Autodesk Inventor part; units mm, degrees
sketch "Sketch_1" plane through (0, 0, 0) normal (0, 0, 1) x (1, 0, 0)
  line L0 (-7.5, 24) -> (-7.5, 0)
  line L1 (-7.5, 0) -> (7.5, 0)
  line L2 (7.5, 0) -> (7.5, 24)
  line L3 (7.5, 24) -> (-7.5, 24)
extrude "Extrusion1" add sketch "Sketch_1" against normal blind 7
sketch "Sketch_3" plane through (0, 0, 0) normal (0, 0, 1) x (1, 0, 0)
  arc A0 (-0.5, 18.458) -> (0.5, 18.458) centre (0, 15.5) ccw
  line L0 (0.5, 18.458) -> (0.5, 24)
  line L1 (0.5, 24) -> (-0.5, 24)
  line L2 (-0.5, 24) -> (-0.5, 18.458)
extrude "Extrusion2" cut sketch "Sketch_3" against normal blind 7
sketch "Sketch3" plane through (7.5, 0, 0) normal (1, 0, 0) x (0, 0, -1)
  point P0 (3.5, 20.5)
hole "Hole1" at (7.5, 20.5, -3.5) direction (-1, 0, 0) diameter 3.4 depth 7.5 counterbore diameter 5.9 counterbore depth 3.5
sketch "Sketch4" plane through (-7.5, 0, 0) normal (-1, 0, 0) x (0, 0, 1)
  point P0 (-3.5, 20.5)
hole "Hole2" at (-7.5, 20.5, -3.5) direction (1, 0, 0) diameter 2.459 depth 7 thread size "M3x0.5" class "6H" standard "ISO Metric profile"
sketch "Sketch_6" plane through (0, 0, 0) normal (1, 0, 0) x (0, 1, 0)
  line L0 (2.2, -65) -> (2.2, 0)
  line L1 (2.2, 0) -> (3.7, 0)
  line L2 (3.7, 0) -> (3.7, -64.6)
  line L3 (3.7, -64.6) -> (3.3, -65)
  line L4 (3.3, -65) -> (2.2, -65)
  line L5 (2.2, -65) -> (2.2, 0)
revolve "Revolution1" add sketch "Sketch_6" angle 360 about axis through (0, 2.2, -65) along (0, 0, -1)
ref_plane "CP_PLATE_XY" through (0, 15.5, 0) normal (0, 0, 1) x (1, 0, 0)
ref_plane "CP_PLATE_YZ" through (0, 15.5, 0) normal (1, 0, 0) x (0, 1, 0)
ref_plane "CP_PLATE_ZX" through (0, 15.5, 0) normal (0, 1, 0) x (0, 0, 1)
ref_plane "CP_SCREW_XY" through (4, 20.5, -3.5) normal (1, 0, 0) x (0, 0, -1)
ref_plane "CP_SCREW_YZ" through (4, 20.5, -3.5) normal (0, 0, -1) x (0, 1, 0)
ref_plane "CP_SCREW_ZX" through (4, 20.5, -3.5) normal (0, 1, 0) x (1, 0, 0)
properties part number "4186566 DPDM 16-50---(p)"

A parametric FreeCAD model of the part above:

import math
import FreeCAD as App
import Part
import Sketcher
Q = App.Units.Quantity

doc = App.newDocument("Part")
body = doc.addObject("PartDesign::Body", "Body")

sketch1 = body.newObject("Sketcher::SketchObject", "Sketch")
sketch1.AttachmentSupport = (doc.getObject("XY_Plane"), [""])
sketch1.MapMode = "FlatFace"
sketch1.addGeometry([
    Part.LineSegment(App.Vector(8, 24, 0), App.Vector(-8, 24, 0)),
    Part.LineSegment(App.Vector(-8, 24, 0), App.Vector(-8, 0, 0)),
    Part.LineSegment(App.Vector(-8, 0, 0), App.Vector(8, 0, 0)),
    Part.LineSegment(App.Vector(8, 0, 0), App.Vector(8, 24, 0)),
], False)
sketch1.addConstraint([
    Sketcher.Constraint("Coincident", 0, 2, 1, 1),
    Sketcher.Constraint("Coincident", 1, 2, 2, 1),
    Sketcher.Constraint("Coincident", 2, 2, 3, 1),
    Sketcher.Constraint("Coincident", 3, 2, 0, 1),
    Sketcher.Constraint("Horizontal", 0),
    Sketcher.Constraint("Vertical", 1),
    Sketcher.Constraint("Horizontal", 2),
    Sketcher.Constraint("Vertical", 3),
    Sketcher.Constraint("Symmetric", 1, 2, 2, 2, -1, 1),
    Sketcher.Constraint("DistanceX", 0, 2, 0, 1, Q("15 mm")),
    Sketcher.Constraint("DistanceY", 1, 2, 1, 1, Q("24 mm")),
])
pad1 = body.newObject("PartDesign::Pad", "Pad")
pad1.Profile = sketch1
pad1.Length = 7
pad1.Reversed = True

sketch2 = body.newObject("Sketcher::SketchObject", "Sketch001")
sketch2.AttachmentSupport = (doc.getObject("XY_Plane"), [""])
sketch2.MapMode = "FlatFace"
sketch2.addGeometry([
    Part.LineSegment(App.Vector(-0.5, 24, 0), App.Vector(-0.5, 18.5, 0)),
    Part.ArcOfCircle(Part.Circle(App.Vector(0, 15.5, 0), App.Vector(0, 0, 1), 3), math.radians(100), math.radians(440)),
    Part.LineSegment(App.Vector(0.5, 18.5, 0), App.Vector(0.5, 24, 0)),
    Part.LineSegment(App.Vector(0.5, 24, 0), App.Vector(-0.5, 24, 0)),
], False)
sketch2.addConstraint([
    Sketcher.Constraint("Coincident", 0, 2, 1, 1),
    Sketcher.Constraint("Coincident", 1, 2, 2, 1),
    Sketcher.Constraint("Coincident", 2, 2, 3, 1),
    Sketcher.Constraint("Coincident", 3, 2, 0, 1),
    Sketcher.Constraint("Vertical", 0),
    Sketcher.Constraint("Vertical", 2),
    Sketcher.Constraint("Horizontal", 3),
    Sketcher.Constraint("Symmetric", 0, 2, 1, 2, -2),
    Sketcher.Constraint("Radius", 1, Q("3 mm")),
    Sketcher.Constraint("DistanceX", 3, 2, 3, 1, Q("1 mm")),
    Sketcher.Constraint("DistanceY", -1, 1, 2, 2, Q("24 mm")),
    Sketcher.Constraint("DistanceY", -1, 1, 1, 3, Q("15.5 mm")),
])
pocket1 = body.newObject("PartDesign::Pocket", "Pocket")
pocket1.Profile = sketch2
pocket1.Length = 7

sketch3 = body.newObject("Sketcher::SketchObject", "Sketch002")
sketch3.AttachmentSupport = (doc.getObject("YZ_Plane"), [""])
sketch3.MapMode = "FlatFace"
sketch3.AttachmentOffset = App.Placement(App.Vector(0, 0, 7.5), App.Rotation())
sketch3.addGeometry(Part.Circle(App.Vector(20.5, -3.5, 0), App.Vector(0, 0, 1), 1.7), False)
sketch3.addConstraint([
    Sketcher.Constraint("Diameter", 0, Q("3.4 mm")),
    Sketcher.Constraint("DistanceX", -1, 1, 0, 3, Q("20.5 mm")),
    Sketcher.Constraint("DistanceY", 0, 3, -1, 1, Q("3.5 mm")),
])
doc.recompute()
hole = body.newObject("PartDesign::Hole", "Hole")
hole.Profile = sketch3
hole.ThreadType = "None"
hole.Diameter = 3.4
hole.DepthType = "Dimension"
hole.Depth = 7.5
hole.DrillPoint = "Flat"
hole.HoleCutType = "Counterbore"
hole.HoleCutDiameter = 5.9
hole.HoleCutDepth = 3.5

sketch4 = body.newObject("Sketcher::SketchObject", "Sketch003")
sketch4.AttachmentSupport = (doc.getObject("YZ_Plane"), [""])
sketch4.MapMode = "FlatFace"
sketch4.AttachmentOffset = App.Placement(App.Vector(0, 0, -7.5), App.Rotation())
sketch4.addGeometry(Part.Circle(App.Vector(20.5, -3.5, 0), App.Vector(0, 0, 1), 1.2), False)
sketch4.addConstraint([
    Sketcher.Constraint("Diameter", 0, Q("2.459 mm")),
    Sketcher.Constraint("DistanceX", -1, 1, 0, 3, Q("20.5 mm")),
    Sketcher.Constraint("DistanceY", 0, 3, -1, 1, Q("3.5 mm")),
])
doc.recompute()
hole2 = body.newObject("PartDesign::Hole", "Hole001")
hole2.Profile = sketch4
hole2.ThreadType = "None"
hole2.Diameter = 2.459
hole2.DepthType = "Dimension"
hole2.Depth = 7
hole2.DrillPoint = "Flat"
hole2.Reversed = True

sketch5 = body.newObject("Sketcher::SketchObject", "Sketch004")
sketch5.AttachmentSupport = (doc.getObject("YZ_Plane"), [""])
sketch5.MapMode = "FlatFace"
sketch5.addGeometry([
    Part.LineSegment(App.Vector(2.2, 0, 0), App.Vector(2.2, -65, 0)),
    Part.LineSegment(App.Vector(2.2, -65, 0), App.Vector(3.3, -65, 0)),
    Part.LineSegment(App.Vector(3.3, -65, 0), App.Vector(3.7, -64.6, 0)),
    Part.LineSegment(App.Vector(3.7, -64.6, 0), App.Vector(3.7, 0, 0)),
    Part.LineSegment(App.Vector(3.7, 0, 0), App.Vector(2.2, 0, 0)),
], False)
sketch5.addGeometry(Part.LineSegment(App.Vector(2.2, 0, 0), App.Vector(2.2, -65, 0)), True)
sketch5.addConstraint([
    Sketcher.Constraint("Coincident", 0, 2, 1, 1),
    Sketcher.Constraint("Coincident", 1, 2, 2, 1),
    Sketcher.Constraint("Coincident", 2, 2, 3, 1),
    Sketcher.Constraint("Coincident", 3, 2, 4, 1),
    Sketcher.Constraint("Coincident", 4, 2, 0, 1),
    Sketcher.Constraint("Vertical", 0),
    Sketcher.Constraint("Horizontal", 1),
    Sketcher.Constraint("Vertical", 3),
    Sketcher.Constraint("Horizontal", 4),
    Sketcher.Constraint("Vertical", 5),
    Sketcher.Constraint("Coincident", 5, 1, 4, 2),
    Sketcher.Constraint("PointOnObject", 3, 2, -1),
    Sketcher.Constraint("Horizontal", 1, 2, 5, 2),
    Sketcher.Constraint("DistanceY", 0, 2, 0, 1, Q("65 mm")),
    Sketcher.Constraint("Angle", 2, Q("45 deg")),
    Sketcher.Constraint("DistanceX", 1, 1, 1, 2, Q("1.1 mm")),
    Sketcher.Constraint("DistanceX", 4, 2, 4, 1, Q("1.5 mm")),
    Sketcher.Constraint("DistanceX", -1, 1, 0, 2, Q("2.2 mm")),
])
revolution = body.newObject("PartDesign::Revolution", "Revolution")
revolution.Profile = sketch5
revolution.ReferenceAxis = (sketch5, ["Axis0"])
revolution.Angle = 360

doc.recompute()
